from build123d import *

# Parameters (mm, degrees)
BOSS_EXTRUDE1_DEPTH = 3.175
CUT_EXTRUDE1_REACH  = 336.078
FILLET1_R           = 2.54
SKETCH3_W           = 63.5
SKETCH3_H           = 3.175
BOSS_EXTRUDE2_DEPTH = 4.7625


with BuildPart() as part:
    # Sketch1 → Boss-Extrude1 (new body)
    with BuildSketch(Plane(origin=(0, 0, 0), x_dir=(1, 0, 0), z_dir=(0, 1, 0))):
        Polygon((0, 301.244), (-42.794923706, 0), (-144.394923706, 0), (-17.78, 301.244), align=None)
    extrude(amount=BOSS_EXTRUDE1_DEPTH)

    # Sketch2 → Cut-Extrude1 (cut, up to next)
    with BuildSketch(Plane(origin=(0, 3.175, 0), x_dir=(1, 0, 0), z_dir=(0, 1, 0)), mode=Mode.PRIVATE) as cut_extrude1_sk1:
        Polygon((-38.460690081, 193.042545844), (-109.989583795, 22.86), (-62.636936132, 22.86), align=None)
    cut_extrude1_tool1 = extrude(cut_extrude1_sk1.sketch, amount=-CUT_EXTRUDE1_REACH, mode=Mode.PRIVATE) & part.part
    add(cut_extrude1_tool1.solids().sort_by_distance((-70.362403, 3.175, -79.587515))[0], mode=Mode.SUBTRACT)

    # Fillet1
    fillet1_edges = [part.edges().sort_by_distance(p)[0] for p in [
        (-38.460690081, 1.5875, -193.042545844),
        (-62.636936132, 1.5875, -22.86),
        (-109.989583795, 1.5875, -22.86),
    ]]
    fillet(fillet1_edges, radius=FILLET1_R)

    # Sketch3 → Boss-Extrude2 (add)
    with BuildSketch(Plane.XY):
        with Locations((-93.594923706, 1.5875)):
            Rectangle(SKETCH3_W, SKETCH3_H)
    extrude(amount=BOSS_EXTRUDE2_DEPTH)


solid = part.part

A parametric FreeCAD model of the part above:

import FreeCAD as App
import Part
import Sketcher

V = App.Vector
Q = App.Units.Quantity


def edges_at(feature, points):
    """Names of the edges that pass closest to the given points."""
    edges = feature.Shape.Edges
    near = lambda p: min(range(len(edges)), key=lambda i: edges[i].distToShape(Part.Vertex(*p))[0])
    return sorted({f"Edge{near(p) + 1}" for p in points})

doc = App.newDocument("Part")
body = doc.addObject("PartDesign::Body", "Body")

# Sketch on XZ plane
sketch1 = body.newObject("Sketcher::SketchObject", "Sketch")
sketch1.AttachmentSupport = (doc.getObject("XZ_Plane"), [""])
sketch1.MapMode = "FlatFace"
sketch1.addGeometry(Part.LineSegment(V(-43, 0, 0), V(0, -301, 0)), False)
sketch1.addGeometry(Part.LineSegment(V(0, -301, 0), V(-18, -301, 0)), False)
sketch1.addGeometry(Part.LineSegment(V(-18, -301, 0), V(-144, 0, 0)), False)
sketch1.addGeometry(Part.LineSegment(V(-144, 0, 0), V(-43, 0, 0)), False)
sketch1.addConstraint(Sketcher.Constraint("Coincident", 0, 2, 1, 1))
sketch1.addConstraint(Sketcher.Constraint("Coincident", 1, 2, 2, 1))
sketch1.addConstraint(Sketcher.Constraint("Coincident", 2, 2, 3, 1))
sketch1.addConstraint(Sketcher.Constraint("Coincident", 3, 2, 0, 1))
sketch1.addConstraint(Sketcher.Constraint("Horizontal", 1))
sketch1.addConstraint(Sketcher.Constraint("Horizontal", 3))
sketch1.addConstraint(Sketcher.Constraint("PointOnObject", 0, 2, -2))
sketch1.addConstraint(Sketcher.Constraint("PointOnObject", 2, 2, -1))
sketch1.addConstraint(Sketcher.Constraint("DistanceX", 3, 1, 3, 2, Q("4 in")))
sketch1.addConstraint(Sketcher.Constraint("DistanceX", 1, 2, 1, 1, Q("0.7 in")))
sketch1.addConstraint(Sketcher.Constraint("DistanceY", 0, 2, -1, 1, Q("11.86 in")))
sketch1.addConstraint(Sketcher.Constraint("Distance", 2, Q("12.865 in")))
pad1 = body.newObject("PartDesign::Pad", "Pad")
pad1.Profile = sketch1
pad1.Length = Q("0.125 in")
pad1.Reversed = True

# Sketch on XZ plane
sketch2 = body.newObject("Sketcher::SketchObject", "Sketch001")
sketch2.AttachmentSupport = (doc.getObject("XZ_Plane"), [""])
sketch2.MapMode = "FlatFace"
sketch2.AttachmentOffset = App.Placement(V(0, 0, -0.125 * 25.4), App.Rotation())
sketch2.addGeometry(Part.LineSegment(V(-38, -193, 0), V(-110, -23, 0)), False)
sketch2.addGeometry(Part.LineSegment(V(-110, -23, 0), V(-63, -23, 0)), False)
sketch2.addGeometry(Part.LineSegment(V(-63, -23, 0), V(-38, -193, 0)), False)
sketch2.addConstraint(Sketcher.Constraint("Coincident", 0, 2, 1, 1))
sketch2.addConstraint(Sketcher.Constraint("Coincident", 1, 2, 2, 1))
sketch2.addConstraint(Sketcher.Constraint("Coincident", 2, 2, 0, 1))
sketch2.addConstraint(Sketcher.Constraint("Horizontal", 1))
sketch2.addConstraint(Sketcher.Constraint("DistanceY", 0, 2, -1, 1, Q("0.9 in")))
sketch2.addConstraint(Sketcher.Constraint("Distance", 0, Q("184.603579 mm")))
sketch2.addConstraint(Sketcher.Constraint("DistanceX", 1, 1, 1, 2, Q("47.352648 mm")))
sketch2.addConstraint(Sketcher.Constraint("DistanceX", 2, 2, -1, 1, Q("38.46069 mm")))
sketch2.addConstraint(Sketcher.Constraint("Distance", 2, Q("171.891215 mm")))
pocket1 = body.newObject("PartDesign::Pocket", "Pocket")
pocket1.Profile = sketch2
pocket1.Type = "UpToFirst"
pocket1.Reversed = True
doc.recompute()

fillet = body.newObject("PartDesign::Fillet", "Fillet")
fillet.Base = (pocket1, edges_at(pocket1, [(-38.461, 1.587, -193.043), (-62.637, 1.587, -22.86), (-109.99, 1.587, -22.86)]))
fillet.Radius = Q("0.1 in")

# Sketch on XY plane
sketch3 = body.newObject("Sketcher::SketchObject", "Sketch002")
sketch3.AttachmentSupport = (doc.getObject("XY_Plane"), [""])
sketch3.MapMode = "FlatFace"
sketch3.addGeometry(Part.LineSegment(V(-125.3, 3.2, 0), V(-125.3, 0, 0)), False)
sketch3.addGeometry(Part.LineSegment(V(-125.3, 0, 0), V(-61.8, 0, 0)), False)
sketch3.addGeometry(Part.LineSegment(V(-61.8, 0, 0), V(-61.8, 3.2, 0)), False)
sketch3.addGeometry(Part.LineSegment(V(-61.8, 3.2, 0), V(-125.3, 3.2, 0)), False)
sketch3.addConstraint(Sketcher.Constraint("Coincident", 0, 2, 1, 1))
sketch3.addConstraint(Sketcher.Constraint("Coincident", 1, 2, 2, 1))
sketch3.addConstraint(Sketcher.Constraint("Coincident", 2, 2, 3, 1))
sketch3.addConstraint(Sketcher.Constraint("Coincident", 3, 2, 0, 1))
sketch3.addConstraint(Sketcher.Constraint("Vertical", 0))
sketch3.addConstraint(Sketcher.Constraint("Horizontal", 1))
sketch3.addConstraint(Sketcher.Constraint("Vertical", 2))
sketch3.addConstraint(Sketcher.Constraint("Horizontal", 3))
sketch3.addConstraint(Sketcher.Constraint("PointOnObject", 0, 2, -1))
sketch3.addConstraint(Sketcher.Constraint("DistanceX", 1, 1, 1, 2, Q("2.5 in")))
sketch3.addConstraint(Sketcher.Constraint("DistanceY", 0, 2, 0, 1, Q("0.125 in")))
sketch3.addConstraint(Sketcher.Constraint("DistanceX", 0, 2, -1, 1, Q("125.344924 mm")))
pad2 = body.newObject("PartDesign::Pad", "Pad001")
pad2.Profile = sketch3
pad2.Length = Q("0.1875 in")

doc.recompute()
